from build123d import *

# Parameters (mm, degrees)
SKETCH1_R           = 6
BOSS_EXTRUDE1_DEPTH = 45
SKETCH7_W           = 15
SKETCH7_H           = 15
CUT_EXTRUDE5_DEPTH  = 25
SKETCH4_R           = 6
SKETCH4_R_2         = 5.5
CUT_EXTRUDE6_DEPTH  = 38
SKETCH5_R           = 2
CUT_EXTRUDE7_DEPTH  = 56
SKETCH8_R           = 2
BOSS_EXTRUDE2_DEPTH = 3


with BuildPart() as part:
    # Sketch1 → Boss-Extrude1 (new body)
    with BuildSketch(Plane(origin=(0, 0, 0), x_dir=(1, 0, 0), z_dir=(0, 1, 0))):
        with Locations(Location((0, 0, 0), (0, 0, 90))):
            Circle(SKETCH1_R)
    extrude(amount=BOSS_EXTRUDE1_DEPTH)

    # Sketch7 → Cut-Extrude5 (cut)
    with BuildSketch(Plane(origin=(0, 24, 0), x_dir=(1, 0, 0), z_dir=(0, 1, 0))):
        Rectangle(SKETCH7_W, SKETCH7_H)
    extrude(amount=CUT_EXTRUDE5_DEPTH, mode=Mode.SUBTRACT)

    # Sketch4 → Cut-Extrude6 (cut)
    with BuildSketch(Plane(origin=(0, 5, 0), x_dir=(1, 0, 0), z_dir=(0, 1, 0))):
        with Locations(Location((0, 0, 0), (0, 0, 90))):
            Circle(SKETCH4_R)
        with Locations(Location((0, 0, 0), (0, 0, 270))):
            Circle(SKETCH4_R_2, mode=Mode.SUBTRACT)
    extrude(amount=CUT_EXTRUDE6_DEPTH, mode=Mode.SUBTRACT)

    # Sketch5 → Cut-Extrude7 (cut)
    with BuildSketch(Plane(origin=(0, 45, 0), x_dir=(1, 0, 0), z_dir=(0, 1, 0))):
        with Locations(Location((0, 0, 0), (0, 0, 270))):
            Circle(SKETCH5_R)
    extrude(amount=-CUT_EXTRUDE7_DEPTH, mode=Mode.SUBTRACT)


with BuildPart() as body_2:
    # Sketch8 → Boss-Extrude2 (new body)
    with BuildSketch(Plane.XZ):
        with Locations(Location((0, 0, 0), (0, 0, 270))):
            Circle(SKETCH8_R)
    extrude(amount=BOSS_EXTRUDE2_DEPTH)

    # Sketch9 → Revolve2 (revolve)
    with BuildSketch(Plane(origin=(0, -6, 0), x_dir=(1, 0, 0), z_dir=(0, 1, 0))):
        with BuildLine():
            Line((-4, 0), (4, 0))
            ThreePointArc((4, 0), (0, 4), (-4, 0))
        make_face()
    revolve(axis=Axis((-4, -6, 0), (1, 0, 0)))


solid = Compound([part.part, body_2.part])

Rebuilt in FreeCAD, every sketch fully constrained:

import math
import FreeCAD as App
import Part
import Sketcher

V = App.Vector


def add_polygon(sketch, points):
    """Adds a closed chain of lines whose ends are joined by coincident constraints."""
    first, n = sketch.GeometryCount, len(points)
    for a, b in zip(points, points[1:] + points[:1]):
        sketch.addGeometry(Part.LineSegment(App.Vector(*a, 0), App.Vector(*b, 0)), False)
    for i in range(n):
        sketch.addConstraint(Sketcher.Constraint("Coincident", first + i, 2, first + (i + 1) % n, 1))

doc = App.newDocument("Part")
body = doc.addObject("PartDesign::Body", "Body")

# Sketch on XZ plane
sketch1 = body.newObject("Sketcher::SketchObject", "Sketch")
sketch1.AttachmentSupport = (doc.getObject("XZ_Plane"), [""])
sketch1.MapMode = "FlatFace"
sketch1.addGeometry(Part.Circle(V(0, 0, 0), V(0, 0, 1), 6), False)
sketch1.addConstraint(Sketcher.Constraint("Coincident", 0, 3, -1, 1))
sketch1.addConstraint(Sketcher.Constraint("Diameter", 0, 12.0))
pad1 = body.newObject("PartDesign::Pad", "Pad")
pad1.Profile = sketch1
pad1.Length = 45
pad1.Reversed = True

# Sketch on XZ plane
sketch2 = body.newObject("Sketcher::SketchObject", "Sketch001")
sketch2.AttachmentSupport = (doc.getObject("XZ_Plane"), [""])
sketch2.MapMode = "FlatFace"
sketch2.AttachmentOffset = App.Placement(V(0, 0, -24), App.Rotation())
add_polygon(sketch2, [(-8, -8), (-8, 8), (8, 8), (8, -8)])  # lines 0-3
sketch2.addConstraint(Sketcher.Constraint("Vertical", 0))
sketch2.addConstraint(Sketcher.Constraint("Horizontal", 1))
sketch2.addConstraint(Sketcher.Constraint("Vertical", 2))
sketch2.addConstraint(Sketcher.Constraint("Horizontal", 3))
sketch2.addConstraint(Sketcher.Constraint("Symmetric", 0, 2, 2, 2, -1, 1))
sketch2.addConstraint(Sketcher.Constraint("Equal", 3, 0))
sketch2.addConstraint(Sketcher.Constraint("DistanceX", 1, 1, 1, 2, 15.0))
pocket1 = body.newObject("PartDesign::Pocket", "Pocket")
pocket1.Profile = sketch2
pocket1.Length = 25

# Sketch on XZ plane
sketch3 = body.newObject("Sketcher::SketchObject", "Sketch002")
sketch3.AttachmentSupport = (doc.getObject("XZ_Plane"), [""])
sketch3.MapMode = "FlatFace"
sketch3.AttachmentOffset = App.Placement(V(0, 0, -5), App.Rotation())
sketch3.addGeometry(Part.Circle(V(0, 0, 0), V(0, 0, 1), 6), False)
sketch3.addGeometry(Part.Circle(V(0, 0, 0), V(0, 0, 1), 6), False)
sketch3.addConstraint(Sketcher.Constraint("Coincident", 0, 3, -1, 1))
sketch3.addConstraint(Sketcher.Constraint("Coincident", 1, 3, -1, 1))
sketch3.addConstraint(Sketcher.Constraint("Diameter", 0, 12.0))
sketch3.addConstraint(Sketcher.Constraint("Diameter", 1, 11.0))
pocket2 = body.newObject("PartDesign::Pocket", "Pocket001")
pocket2.Profile = sketch3
pocket2.Length = 38

# Sketch on XZ plane
sketch4 = body.newObject("Sketcher::SketchObject", "Sketch003")
sketch4.AttachmentSupport = (doc.getObject("XZ_Plane"), [""])
sketch4.MapMode = "FlatFace"
sketch4.AttachmentOffset = App.Placement(V(0, 0, -45), App.Rotation())
sketch4.addGeometry(Part.Circle(V(0, 0, 0), V(0, 0, 1), 2), False)
sketch4.addConstraint(Sketcher.Constraint("Coincident", 0, 3, -1, 1))
sketch4.addConstraint(Sketcher.Constraint("Diameter", 0, 4.0))
pocket3 = body.newObject("PartDesign::Pocket", "Pocket002")
pocket3.Profile = sketch4
pocket3.Length = 56
pocket3.Reversed = True
body2 = doc.addObject("PartDesign::Body", "Body001")

# Sketch on XZ plane
sketch5 = body2.newObject("Sketcher::SketchObject", "Sketch004")
sketch5.AttachmentSupport = (doc.getObject("XZ_Plane001"), [""])
sketch5.MapMode = "FlatFace"
sketch5.addGeometry(Part.Circle(V(0, 0, 0), V(0, 0, 1), 2), False)
sketch5.addConstraint(Sketcher.Constraint("Coincident", 0, 3, -1, 1))
sketch5.addConstraint(Sketcher.Constraint("Diameter", 0, 4.0))
pad2 = body2.newObject("PartDesign::Pad", "Pad001")
pad2.Profile = sketch5
pad2.Length = 3

# Sketch on XZ plane
sketch6 = body2.newObject("Sketcher::SketchObject", "Sketch005")
sketch6.AttachmentSupport = (doc.getObject("XZ_Plane001"), [""])
sketch6.MapMode = "FlatFace"
sketch6.AttachmentOffset = App.Placement(V(0, 0, 6), App.Rotation())
sketch6.addGeometry(Part.LineSegment(V(-4, 0, 0), V(4, 0, 0)), False)
sketch6.addGeometry(Part.ArcOfCircle(Part.Circle(V(0, 0, 0), V(0, 0, 1), 4), math.radians(180), math.radians(360)), False)
sketch6.addConstraint(Sketcher.Constraint("Coincident", 0, 1, 1, 1))
sketch6.addConstraint(Sketcher.Constraint("Coincident", 1, 2, 0, 2))
sketch6.addConstraint(Sketcher.Constraint("Horizontal", 0))
sketch6.addConstraint(Sketcher.Constraint("Coincident", 1, 3, -1, 1))
sketch6.addConstraint(Sketcher.Constraint("PointOnObject", 0, 1, -1))
sketch6.addConstraint(Sketcher.Constraint("Radius", 1, 4.0))
revolution = body2.newObject("PartDesign::Revolution", "Revolution")
revolution.Profile = sketch6
revolution.ReferenceAxis = (sketch6, ["H_Axis"])
revolution.Angle = 360

doc.recompute()
